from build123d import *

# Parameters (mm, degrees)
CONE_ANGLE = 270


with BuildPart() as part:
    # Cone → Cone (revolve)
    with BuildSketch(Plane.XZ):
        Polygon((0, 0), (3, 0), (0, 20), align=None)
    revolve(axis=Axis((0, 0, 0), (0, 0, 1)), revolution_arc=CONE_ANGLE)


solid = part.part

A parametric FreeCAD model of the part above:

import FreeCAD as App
import Part
import Sketcher


def add_polygon(sketch, points):
    """Adds a closed chain of lines whose ends are joined by coincident constraints."""
    first, n = sketch.GeometryCount, len(points)
    for a, b in zip(points, points[1:] + points[:1]):
        sketch.addGeometry(Part.LineSegment(App.Vector(*a, 0), App.Vector(*b, 0)), False)
    for i in range(n):
        sketch.addConstraint(Sketcher.Constraint("Coincident", first + i, 2, first + (i + 1) % n, 1))

doc = App.newDocument("Part")
body = doc.addObject("PartDesign::Body", "Body")

sketch1 = body.newObject("Sketcher::SketchObject", "Sketch")
sketch1.AttachmentSupport = (doc.getObject("XZ_Plane"), [""])
sketch1.MapMode = "FlatFace"
add_polygon(sketch1, [(0, 0), (3, 0), (0, 20)])
sketch1.addConstraint(Sketcher.Constraint("Horizontal", 0))
sketch1.addConstraint(Sketcher.Constraint("Vertical", 2))
sketch1.addConstraint(Sketcher.Constraint("Coincident", 2, 2, -1, 1))
sketch1.addConstraint(Sketcher.Constraint("DistanceX", 0, 1, 0, 2, 3.0))
sketch1.addConstraint(Sketcher.Constraint("DistanceY", 2, 2, 2, 1, 20.0))
revolution = body.newObject("PartDesign::Revolution", "Revolution")
revolution.Profile = sketch1
revolution.ReferenceAxis = (sketch1, ["V_Axis"])
revolution.Angle = 270

doc.recompute()
